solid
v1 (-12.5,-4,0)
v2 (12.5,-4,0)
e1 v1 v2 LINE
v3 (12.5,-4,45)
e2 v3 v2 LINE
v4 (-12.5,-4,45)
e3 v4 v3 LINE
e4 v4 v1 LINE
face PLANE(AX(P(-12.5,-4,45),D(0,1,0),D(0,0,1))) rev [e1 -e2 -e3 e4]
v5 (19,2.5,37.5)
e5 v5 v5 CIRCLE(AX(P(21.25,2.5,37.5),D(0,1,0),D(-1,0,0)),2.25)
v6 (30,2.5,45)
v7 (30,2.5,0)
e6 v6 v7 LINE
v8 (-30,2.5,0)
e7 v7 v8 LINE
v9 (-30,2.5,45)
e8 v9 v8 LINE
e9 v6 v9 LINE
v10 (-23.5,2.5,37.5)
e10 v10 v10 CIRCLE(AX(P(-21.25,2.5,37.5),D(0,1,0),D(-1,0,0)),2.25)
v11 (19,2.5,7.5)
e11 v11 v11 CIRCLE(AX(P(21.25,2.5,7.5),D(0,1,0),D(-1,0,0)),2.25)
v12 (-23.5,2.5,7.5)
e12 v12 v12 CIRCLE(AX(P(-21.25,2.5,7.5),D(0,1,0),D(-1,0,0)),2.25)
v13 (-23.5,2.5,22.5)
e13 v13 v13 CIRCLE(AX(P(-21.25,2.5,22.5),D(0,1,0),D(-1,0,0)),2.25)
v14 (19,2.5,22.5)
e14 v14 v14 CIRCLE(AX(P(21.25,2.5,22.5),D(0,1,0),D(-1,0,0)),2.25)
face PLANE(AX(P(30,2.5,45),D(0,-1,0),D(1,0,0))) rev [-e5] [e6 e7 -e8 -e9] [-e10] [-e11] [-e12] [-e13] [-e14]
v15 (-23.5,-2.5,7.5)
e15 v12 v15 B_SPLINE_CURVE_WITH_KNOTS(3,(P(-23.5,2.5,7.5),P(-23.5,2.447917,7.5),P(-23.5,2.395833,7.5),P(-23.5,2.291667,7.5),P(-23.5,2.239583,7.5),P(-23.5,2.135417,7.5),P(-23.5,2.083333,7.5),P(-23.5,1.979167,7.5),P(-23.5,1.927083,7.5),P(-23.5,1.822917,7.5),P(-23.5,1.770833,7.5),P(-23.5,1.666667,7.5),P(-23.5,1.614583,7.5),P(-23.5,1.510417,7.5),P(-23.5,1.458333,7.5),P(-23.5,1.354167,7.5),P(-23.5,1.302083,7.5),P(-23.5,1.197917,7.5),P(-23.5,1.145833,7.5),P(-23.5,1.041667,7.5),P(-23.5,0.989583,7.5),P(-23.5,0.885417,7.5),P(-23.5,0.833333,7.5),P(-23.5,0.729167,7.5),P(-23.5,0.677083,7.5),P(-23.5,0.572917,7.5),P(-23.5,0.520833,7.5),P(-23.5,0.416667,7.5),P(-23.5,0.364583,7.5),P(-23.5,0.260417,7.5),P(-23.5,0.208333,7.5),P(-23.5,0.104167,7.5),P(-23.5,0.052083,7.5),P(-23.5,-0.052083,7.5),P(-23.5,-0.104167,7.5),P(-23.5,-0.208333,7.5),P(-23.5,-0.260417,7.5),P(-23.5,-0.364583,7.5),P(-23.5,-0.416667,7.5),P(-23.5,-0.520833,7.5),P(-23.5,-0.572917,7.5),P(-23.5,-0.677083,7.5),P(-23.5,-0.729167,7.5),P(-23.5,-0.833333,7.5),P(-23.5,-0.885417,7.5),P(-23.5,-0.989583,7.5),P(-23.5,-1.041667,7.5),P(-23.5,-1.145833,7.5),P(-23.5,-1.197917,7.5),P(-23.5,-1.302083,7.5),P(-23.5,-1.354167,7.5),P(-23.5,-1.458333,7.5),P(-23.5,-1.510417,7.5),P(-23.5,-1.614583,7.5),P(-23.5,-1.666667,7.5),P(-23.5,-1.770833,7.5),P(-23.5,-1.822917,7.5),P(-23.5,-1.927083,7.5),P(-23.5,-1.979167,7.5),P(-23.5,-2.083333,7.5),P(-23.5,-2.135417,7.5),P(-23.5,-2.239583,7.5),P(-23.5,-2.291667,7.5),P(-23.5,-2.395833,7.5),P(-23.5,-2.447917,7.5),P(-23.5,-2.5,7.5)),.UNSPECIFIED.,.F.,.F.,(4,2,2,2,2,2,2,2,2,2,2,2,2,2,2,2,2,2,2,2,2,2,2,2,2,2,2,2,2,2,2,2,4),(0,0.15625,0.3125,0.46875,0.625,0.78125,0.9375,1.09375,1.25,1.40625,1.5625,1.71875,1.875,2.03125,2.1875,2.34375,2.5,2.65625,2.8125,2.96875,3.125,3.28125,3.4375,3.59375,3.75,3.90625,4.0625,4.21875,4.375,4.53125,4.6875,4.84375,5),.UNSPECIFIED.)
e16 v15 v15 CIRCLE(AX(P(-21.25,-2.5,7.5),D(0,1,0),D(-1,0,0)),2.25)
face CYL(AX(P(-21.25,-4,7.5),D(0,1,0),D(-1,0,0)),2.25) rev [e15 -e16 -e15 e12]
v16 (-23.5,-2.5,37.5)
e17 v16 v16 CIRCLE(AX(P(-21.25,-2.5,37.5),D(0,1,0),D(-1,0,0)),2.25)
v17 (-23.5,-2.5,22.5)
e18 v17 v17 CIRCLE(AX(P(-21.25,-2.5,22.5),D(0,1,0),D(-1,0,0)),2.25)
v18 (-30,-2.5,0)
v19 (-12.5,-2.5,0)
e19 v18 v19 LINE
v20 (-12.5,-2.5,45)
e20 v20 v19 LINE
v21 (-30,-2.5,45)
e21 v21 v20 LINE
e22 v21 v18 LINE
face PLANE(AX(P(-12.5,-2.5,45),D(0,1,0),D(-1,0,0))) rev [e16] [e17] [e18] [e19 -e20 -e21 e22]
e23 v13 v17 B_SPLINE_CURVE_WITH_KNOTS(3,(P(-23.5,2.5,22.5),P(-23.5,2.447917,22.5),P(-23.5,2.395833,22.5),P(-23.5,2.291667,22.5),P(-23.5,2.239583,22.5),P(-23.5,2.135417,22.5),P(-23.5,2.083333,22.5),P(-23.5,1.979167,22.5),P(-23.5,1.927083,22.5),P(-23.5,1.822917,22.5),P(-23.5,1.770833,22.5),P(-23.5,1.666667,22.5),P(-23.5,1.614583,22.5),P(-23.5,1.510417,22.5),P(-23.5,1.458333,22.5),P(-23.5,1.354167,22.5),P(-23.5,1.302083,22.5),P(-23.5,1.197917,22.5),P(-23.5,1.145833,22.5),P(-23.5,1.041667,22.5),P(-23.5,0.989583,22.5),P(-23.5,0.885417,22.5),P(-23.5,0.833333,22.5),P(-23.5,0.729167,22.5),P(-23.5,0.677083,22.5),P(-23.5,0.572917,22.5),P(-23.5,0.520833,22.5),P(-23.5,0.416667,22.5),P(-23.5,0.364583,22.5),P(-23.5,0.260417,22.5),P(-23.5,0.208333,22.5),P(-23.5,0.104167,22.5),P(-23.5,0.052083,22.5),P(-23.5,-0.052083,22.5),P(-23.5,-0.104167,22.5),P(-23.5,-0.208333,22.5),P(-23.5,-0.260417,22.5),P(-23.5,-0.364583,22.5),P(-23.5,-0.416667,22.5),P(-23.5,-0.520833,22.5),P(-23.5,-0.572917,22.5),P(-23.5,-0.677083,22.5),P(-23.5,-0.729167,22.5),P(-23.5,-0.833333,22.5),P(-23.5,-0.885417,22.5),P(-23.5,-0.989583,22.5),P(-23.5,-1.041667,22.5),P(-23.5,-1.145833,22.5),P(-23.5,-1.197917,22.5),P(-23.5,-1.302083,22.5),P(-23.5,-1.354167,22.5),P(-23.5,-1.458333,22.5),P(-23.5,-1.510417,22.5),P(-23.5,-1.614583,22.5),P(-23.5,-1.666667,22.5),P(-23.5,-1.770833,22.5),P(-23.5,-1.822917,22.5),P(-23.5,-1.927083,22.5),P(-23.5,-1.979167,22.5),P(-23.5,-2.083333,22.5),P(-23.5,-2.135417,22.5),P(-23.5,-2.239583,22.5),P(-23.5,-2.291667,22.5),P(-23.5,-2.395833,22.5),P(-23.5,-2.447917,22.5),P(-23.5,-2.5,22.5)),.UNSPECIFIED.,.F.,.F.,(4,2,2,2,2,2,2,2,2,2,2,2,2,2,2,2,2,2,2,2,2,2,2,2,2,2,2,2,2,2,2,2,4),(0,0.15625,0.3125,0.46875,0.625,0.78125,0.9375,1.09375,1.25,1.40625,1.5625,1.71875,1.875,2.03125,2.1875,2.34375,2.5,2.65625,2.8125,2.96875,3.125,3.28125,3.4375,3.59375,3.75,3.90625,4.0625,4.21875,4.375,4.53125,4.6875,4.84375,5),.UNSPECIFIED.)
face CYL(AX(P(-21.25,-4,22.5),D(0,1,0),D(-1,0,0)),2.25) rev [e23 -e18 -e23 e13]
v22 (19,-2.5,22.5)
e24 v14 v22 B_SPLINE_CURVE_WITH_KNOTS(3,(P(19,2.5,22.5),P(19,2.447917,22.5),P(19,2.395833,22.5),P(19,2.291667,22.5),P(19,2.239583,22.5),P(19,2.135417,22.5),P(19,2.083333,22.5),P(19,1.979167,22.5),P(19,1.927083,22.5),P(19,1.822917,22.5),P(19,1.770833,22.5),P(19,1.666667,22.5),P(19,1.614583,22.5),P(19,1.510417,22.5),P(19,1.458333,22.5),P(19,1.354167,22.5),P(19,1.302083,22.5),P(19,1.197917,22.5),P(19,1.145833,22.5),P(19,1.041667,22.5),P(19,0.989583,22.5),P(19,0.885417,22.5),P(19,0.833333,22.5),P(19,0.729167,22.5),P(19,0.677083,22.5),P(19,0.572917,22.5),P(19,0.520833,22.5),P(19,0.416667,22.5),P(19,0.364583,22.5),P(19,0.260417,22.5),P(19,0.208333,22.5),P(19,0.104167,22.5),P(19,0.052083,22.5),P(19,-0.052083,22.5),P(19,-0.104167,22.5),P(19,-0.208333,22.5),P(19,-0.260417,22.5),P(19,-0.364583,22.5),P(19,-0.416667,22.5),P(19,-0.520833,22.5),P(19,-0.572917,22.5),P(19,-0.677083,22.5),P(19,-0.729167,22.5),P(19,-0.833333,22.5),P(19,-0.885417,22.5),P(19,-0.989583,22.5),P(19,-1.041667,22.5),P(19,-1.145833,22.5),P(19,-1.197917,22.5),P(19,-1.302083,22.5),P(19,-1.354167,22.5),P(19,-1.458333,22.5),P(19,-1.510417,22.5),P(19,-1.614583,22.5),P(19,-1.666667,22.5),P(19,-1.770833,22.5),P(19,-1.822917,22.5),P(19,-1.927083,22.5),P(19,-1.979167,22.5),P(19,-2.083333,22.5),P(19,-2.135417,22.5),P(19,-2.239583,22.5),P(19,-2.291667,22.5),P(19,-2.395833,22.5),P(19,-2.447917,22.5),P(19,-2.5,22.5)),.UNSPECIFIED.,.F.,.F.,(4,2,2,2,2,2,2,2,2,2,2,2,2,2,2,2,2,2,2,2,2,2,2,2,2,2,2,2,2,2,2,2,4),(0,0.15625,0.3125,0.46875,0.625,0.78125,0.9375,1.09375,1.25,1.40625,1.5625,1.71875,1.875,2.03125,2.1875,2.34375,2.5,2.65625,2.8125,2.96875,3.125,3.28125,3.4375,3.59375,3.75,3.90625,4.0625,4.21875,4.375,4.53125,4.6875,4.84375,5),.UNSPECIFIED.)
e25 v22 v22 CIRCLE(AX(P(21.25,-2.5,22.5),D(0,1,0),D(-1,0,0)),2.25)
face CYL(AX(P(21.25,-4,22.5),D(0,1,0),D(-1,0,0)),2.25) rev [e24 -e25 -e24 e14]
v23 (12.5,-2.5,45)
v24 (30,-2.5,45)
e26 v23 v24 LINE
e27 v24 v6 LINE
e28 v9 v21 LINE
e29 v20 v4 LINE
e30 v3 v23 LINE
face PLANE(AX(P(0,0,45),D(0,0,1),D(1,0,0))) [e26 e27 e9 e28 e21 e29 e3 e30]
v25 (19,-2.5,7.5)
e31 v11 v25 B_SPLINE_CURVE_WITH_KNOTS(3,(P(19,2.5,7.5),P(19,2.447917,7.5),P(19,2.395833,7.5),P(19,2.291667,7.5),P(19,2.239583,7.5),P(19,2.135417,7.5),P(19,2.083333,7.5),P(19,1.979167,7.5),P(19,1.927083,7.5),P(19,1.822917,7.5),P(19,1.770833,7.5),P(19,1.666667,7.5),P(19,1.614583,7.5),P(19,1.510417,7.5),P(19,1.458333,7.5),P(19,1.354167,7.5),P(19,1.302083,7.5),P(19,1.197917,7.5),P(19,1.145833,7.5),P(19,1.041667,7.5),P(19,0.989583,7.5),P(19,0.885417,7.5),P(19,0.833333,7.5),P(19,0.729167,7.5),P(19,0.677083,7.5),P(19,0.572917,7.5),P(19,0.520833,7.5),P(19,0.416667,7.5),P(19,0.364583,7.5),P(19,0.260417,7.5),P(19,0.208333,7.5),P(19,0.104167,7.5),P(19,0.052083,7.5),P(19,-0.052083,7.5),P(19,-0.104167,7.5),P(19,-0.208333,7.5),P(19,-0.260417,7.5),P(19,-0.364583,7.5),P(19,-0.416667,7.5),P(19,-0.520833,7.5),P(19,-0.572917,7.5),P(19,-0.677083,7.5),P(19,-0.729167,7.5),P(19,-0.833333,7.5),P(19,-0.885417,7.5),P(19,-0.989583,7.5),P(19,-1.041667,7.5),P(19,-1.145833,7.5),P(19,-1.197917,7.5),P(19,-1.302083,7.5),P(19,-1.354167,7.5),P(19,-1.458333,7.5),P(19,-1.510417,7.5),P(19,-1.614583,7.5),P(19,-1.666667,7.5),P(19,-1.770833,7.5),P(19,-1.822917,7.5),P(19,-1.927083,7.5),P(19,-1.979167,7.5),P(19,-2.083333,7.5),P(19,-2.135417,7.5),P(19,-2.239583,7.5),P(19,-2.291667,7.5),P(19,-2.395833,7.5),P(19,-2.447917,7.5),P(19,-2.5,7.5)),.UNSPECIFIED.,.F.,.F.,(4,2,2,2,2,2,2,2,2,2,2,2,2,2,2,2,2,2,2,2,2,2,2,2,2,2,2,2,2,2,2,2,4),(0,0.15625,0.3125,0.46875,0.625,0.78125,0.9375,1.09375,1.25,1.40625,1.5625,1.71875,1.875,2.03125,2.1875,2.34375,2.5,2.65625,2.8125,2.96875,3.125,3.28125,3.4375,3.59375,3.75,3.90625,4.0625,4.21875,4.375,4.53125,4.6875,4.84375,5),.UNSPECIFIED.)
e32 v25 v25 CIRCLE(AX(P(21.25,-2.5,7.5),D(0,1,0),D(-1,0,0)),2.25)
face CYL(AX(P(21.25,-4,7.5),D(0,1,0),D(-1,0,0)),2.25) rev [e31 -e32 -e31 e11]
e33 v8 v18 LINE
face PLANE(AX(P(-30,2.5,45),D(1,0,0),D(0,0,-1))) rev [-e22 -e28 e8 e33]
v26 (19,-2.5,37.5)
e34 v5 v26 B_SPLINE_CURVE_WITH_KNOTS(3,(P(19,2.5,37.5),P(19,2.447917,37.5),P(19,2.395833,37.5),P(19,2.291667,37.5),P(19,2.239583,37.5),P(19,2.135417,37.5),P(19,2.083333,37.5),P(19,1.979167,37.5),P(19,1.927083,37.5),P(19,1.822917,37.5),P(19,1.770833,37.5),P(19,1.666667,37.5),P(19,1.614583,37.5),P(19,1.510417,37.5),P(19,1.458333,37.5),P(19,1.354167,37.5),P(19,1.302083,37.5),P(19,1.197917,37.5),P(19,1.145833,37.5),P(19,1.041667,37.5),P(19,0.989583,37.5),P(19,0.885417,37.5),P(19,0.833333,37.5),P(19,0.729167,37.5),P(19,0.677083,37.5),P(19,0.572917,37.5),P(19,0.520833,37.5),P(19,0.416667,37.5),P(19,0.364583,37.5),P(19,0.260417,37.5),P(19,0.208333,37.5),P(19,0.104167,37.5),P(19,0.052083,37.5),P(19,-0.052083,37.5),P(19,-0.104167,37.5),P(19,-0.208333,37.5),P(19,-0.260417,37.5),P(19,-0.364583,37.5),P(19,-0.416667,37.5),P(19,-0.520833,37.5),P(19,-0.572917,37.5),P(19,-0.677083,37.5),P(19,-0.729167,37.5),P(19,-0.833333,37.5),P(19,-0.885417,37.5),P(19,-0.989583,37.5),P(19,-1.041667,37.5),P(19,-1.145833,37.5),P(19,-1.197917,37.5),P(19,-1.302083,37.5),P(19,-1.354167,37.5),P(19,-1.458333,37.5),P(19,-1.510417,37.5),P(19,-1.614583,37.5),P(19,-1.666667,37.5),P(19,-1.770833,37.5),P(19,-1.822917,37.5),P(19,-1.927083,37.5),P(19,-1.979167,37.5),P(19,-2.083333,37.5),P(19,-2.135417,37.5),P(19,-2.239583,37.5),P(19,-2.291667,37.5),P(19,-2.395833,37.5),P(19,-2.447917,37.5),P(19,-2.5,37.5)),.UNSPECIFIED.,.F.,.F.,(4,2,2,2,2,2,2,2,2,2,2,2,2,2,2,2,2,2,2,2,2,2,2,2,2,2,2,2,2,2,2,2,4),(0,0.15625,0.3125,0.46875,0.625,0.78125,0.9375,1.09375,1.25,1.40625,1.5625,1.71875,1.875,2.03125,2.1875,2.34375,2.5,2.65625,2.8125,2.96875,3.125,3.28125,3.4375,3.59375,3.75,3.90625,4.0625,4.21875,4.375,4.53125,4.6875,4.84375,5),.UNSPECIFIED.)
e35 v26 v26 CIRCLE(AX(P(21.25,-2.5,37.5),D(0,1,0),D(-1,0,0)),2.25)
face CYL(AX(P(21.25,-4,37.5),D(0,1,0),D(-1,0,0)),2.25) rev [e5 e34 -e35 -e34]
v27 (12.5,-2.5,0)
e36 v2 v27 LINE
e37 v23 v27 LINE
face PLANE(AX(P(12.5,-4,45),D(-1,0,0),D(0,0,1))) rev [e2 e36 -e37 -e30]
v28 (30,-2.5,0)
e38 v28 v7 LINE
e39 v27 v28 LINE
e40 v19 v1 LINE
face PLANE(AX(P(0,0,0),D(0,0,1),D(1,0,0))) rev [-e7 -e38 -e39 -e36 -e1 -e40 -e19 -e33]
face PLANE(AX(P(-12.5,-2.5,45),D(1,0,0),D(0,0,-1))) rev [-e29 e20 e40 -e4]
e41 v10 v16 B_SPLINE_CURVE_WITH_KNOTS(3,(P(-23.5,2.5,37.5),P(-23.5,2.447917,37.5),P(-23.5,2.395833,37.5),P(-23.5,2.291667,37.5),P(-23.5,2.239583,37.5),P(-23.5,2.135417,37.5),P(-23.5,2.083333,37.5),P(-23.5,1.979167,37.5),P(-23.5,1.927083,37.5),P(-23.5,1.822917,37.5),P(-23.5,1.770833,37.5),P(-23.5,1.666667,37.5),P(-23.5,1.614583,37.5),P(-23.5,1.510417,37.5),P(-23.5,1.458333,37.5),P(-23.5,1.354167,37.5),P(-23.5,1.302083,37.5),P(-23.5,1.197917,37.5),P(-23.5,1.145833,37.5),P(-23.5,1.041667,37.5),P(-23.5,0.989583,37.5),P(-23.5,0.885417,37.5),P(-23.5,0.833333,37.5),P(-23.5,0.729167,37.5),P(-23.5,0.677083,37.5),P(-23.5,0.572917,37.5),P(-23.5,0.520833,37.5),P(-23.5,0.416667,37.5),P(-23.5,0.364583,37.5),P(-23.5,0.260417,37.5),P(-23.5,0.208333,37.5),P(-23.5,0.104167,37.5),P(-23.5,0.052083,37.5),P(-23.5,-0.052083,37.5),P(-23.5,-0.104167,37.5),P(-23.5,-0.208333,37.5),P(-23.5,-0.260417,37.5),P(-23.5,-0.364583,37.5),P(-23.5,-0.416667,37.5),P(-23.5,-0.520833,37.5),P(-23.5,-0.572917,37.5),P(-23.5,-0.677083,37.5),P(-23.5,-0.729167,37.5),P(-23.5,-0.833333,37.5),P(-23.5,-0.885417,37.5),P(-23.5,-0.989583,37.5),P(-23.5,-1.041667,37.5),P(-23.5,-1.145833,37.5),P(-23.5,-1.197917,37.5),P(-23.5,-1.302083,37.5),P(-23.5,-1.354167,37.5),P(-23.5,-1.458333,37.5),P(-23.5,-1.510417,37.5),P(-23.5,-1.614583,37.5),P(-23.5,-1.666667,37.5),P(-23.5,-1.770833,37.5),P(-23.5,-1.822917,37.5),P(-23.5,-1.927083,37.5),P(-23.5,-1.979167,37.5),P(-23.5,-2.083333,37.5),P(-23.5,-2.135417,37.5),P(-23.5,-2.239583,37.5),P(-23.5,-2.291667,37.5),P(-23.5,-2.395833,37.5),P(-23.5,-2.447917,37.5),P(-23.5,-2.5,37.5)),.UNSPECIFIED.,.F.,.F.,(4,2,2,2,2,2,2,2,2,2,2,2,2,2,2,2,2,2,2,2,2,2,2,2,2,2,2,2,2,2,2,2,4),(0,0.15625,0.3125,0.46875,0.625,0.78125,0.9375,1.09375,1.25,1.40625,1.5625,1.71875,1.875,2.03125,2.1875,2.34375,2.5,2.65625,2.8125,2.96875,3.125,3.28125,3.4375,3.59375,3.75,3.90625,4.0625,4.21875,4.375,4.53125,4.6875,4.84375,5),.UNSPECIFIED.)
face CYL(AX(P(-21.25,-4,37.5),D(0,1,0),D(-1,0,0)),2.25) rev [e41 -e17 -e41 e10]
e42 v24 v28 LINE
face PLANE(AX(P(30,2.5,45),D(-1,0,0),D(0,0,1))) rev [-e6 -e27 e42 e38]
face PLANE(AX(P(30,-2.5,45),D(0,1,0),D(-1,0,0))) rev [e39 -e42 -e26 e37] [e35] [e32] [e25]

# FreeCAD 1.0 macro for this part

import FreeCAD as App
import Part
import Sketcher
from FreeCAD import Vector
Q = App.Units.Quantity


def add_polygon(sketch, points):
    """Adds a closed chain of lines whose ends are joined by coincident constraints."""
    first, n = sketch.GeometryCount, len(points)
    for a, b in zip(points, points[1:] + points[:1]):
        sketch.addGeometry(Part.LineSegment(App.Vector(*a, 0), App.Vector(*b, 0)), False)
    for i in range(n):
        sketch.addConstraint(Sketcher.Constraint("Coincident", first + i, 2, first + (i + 1) % n, 1))

doc = App.newDocument("Part")
body = doc.addObject("PartDesign::Body", "Body")

sketch1 = doc.addObject("Sketcher::SketchObject", "Sketch")
body.addObject(sketch1)
sketch1.AttachmentSupport = (doc.XY_Plane, [""])
sketch1.MapMode = "FlatFace"
add_polygon(sketch1, [(-12.5, -2.5), (-12.5, -4), (12.5, -4), (12.5, -2.5), (30, -2.5), (30, 2.5), (-30, 2.5), (-30, -2.5)])
sketch1.addConstraint([
    Sketcher.Constraint("Vertical", 0),
    Sketcher.Constraint("Horizontal", 1),
    Sketcher.Constraint("Vertical", 2),
    Sketcher.Constraint("Horizontal", 3),
    Sketcher.Constraint("Vertical", 4),
    Sketcher.Constraint("Horizontal", 5),
    Sketcher.Constraint("Vertical", 6),
    Sketcher.Constraint("Horizontal", 7),
    Sketcher.Constraint("Symmetric", 3, 2, 5, 2, -1, 1),
    Sketcher.Constraint("Symmetric", 2, 2, 7, 2, -2),
    Sketcher.Constraint("DistanceX", 1, 1, 1, 2, Q("25 mm")),
    Sketcher.Constraint("DistanceX", 5, 2, 5, 1, Q("60 mm")),
    Sketcher.Constraint("DistanceY", 4, 1, 4, 2, Q("5 mm")),
    Sketcher.Constraint("DistanceY", 0, 2, 0, 1, Q("1.5 mm")),
])
pad1 = doc.addObject("PartDesign::Pad", "Pad")
body.addObject(pad1)
pad1.Profile = sketch1
pad1.Length = 45

sketch2 = doc.addObject("Sketcher::SketchObject", "Sketch001")
body.addObject(sketch2)
sketch2.AttachmentSupport = (doc.XZ_Plane, [""])
sketch2.MapMode = "FlatFace"
sketch2.AttachmentOffset = App.Placement(Vector(0, 0, -2.5), App.Rotation())
sketch2.addGeometry([
    Part.Circle(Vector(-21.2, 7.5, 0), Vector(0, 0, 1), 2.2),
    Part.Circle(Vector(-21.2, 22.5, 0), Vector(0, 0, 1), 2.2),
    Part.Circle(Vector(-21.2, 37.5, 0), Vector(0, 0, 1), 2.2),
    Part.Circle(Vector(21.2, 37.5, 0), Vector(0, 0, 1), 2.2),
    Part.Circle(Vector(21.2, 22.5, 0), Vector(0, 0, 1), 2.2),
    Part.Circle(Vector(21.2, 7.5, 0), Vector(0, 0, 1), 2.2),
], False)
sketch2.addConstraint([
    Sketcher.Constraint("Equal", 0, 1),
    Sketcher.Constraint("Equal", 1, 2),
    Sketcher.Constraint("Equal", 2, 3),
    Sketcher.Constraint("Equal", 3, 4),
    Sketcher.Constraint("Equal", 4, 5),
    Sketcher.Constraint("Symmetric", 2, 3, 3, 3, -2),
    Sketcher.Constraint("Symmetric", 1, 3, 4, 3, -2),
    Sketcher.Constraint("Symmetric", 0, 3, 5, 3, -2),
    Sketcher.Constraint("Vertical", 0, 3, 1, 3),
    Sketcher.Constraint("Vertical", 1, 3, 2, 3),
    Sketcher.Constraint("Diameter", 0, Q("4.5 mm")),
    Sketcher.Constraint("DistanceY", 0, 3, 1, 3, Q("15 mm")),
    Sketcher.Constraint("DistanceY", 1, 3, 2, 3, Q("15 mm")),
    Sketcher.Constraint("DistanceY", -1, 1, 0, 3, Q("7.5 mm")),
    Sketcher.Constraint("DistanceX", 2, 3, 3, 3, Q("42.5 mm")),
])
pocket1 = doc.addObject("PartDesign::Pocket", "Pocket")
body.addObject(pocket1)
pocket1.Profile = sketch2
pocket1.Type = "ThroughAll"
pocket1.Reversed = True

doc.recompute()
